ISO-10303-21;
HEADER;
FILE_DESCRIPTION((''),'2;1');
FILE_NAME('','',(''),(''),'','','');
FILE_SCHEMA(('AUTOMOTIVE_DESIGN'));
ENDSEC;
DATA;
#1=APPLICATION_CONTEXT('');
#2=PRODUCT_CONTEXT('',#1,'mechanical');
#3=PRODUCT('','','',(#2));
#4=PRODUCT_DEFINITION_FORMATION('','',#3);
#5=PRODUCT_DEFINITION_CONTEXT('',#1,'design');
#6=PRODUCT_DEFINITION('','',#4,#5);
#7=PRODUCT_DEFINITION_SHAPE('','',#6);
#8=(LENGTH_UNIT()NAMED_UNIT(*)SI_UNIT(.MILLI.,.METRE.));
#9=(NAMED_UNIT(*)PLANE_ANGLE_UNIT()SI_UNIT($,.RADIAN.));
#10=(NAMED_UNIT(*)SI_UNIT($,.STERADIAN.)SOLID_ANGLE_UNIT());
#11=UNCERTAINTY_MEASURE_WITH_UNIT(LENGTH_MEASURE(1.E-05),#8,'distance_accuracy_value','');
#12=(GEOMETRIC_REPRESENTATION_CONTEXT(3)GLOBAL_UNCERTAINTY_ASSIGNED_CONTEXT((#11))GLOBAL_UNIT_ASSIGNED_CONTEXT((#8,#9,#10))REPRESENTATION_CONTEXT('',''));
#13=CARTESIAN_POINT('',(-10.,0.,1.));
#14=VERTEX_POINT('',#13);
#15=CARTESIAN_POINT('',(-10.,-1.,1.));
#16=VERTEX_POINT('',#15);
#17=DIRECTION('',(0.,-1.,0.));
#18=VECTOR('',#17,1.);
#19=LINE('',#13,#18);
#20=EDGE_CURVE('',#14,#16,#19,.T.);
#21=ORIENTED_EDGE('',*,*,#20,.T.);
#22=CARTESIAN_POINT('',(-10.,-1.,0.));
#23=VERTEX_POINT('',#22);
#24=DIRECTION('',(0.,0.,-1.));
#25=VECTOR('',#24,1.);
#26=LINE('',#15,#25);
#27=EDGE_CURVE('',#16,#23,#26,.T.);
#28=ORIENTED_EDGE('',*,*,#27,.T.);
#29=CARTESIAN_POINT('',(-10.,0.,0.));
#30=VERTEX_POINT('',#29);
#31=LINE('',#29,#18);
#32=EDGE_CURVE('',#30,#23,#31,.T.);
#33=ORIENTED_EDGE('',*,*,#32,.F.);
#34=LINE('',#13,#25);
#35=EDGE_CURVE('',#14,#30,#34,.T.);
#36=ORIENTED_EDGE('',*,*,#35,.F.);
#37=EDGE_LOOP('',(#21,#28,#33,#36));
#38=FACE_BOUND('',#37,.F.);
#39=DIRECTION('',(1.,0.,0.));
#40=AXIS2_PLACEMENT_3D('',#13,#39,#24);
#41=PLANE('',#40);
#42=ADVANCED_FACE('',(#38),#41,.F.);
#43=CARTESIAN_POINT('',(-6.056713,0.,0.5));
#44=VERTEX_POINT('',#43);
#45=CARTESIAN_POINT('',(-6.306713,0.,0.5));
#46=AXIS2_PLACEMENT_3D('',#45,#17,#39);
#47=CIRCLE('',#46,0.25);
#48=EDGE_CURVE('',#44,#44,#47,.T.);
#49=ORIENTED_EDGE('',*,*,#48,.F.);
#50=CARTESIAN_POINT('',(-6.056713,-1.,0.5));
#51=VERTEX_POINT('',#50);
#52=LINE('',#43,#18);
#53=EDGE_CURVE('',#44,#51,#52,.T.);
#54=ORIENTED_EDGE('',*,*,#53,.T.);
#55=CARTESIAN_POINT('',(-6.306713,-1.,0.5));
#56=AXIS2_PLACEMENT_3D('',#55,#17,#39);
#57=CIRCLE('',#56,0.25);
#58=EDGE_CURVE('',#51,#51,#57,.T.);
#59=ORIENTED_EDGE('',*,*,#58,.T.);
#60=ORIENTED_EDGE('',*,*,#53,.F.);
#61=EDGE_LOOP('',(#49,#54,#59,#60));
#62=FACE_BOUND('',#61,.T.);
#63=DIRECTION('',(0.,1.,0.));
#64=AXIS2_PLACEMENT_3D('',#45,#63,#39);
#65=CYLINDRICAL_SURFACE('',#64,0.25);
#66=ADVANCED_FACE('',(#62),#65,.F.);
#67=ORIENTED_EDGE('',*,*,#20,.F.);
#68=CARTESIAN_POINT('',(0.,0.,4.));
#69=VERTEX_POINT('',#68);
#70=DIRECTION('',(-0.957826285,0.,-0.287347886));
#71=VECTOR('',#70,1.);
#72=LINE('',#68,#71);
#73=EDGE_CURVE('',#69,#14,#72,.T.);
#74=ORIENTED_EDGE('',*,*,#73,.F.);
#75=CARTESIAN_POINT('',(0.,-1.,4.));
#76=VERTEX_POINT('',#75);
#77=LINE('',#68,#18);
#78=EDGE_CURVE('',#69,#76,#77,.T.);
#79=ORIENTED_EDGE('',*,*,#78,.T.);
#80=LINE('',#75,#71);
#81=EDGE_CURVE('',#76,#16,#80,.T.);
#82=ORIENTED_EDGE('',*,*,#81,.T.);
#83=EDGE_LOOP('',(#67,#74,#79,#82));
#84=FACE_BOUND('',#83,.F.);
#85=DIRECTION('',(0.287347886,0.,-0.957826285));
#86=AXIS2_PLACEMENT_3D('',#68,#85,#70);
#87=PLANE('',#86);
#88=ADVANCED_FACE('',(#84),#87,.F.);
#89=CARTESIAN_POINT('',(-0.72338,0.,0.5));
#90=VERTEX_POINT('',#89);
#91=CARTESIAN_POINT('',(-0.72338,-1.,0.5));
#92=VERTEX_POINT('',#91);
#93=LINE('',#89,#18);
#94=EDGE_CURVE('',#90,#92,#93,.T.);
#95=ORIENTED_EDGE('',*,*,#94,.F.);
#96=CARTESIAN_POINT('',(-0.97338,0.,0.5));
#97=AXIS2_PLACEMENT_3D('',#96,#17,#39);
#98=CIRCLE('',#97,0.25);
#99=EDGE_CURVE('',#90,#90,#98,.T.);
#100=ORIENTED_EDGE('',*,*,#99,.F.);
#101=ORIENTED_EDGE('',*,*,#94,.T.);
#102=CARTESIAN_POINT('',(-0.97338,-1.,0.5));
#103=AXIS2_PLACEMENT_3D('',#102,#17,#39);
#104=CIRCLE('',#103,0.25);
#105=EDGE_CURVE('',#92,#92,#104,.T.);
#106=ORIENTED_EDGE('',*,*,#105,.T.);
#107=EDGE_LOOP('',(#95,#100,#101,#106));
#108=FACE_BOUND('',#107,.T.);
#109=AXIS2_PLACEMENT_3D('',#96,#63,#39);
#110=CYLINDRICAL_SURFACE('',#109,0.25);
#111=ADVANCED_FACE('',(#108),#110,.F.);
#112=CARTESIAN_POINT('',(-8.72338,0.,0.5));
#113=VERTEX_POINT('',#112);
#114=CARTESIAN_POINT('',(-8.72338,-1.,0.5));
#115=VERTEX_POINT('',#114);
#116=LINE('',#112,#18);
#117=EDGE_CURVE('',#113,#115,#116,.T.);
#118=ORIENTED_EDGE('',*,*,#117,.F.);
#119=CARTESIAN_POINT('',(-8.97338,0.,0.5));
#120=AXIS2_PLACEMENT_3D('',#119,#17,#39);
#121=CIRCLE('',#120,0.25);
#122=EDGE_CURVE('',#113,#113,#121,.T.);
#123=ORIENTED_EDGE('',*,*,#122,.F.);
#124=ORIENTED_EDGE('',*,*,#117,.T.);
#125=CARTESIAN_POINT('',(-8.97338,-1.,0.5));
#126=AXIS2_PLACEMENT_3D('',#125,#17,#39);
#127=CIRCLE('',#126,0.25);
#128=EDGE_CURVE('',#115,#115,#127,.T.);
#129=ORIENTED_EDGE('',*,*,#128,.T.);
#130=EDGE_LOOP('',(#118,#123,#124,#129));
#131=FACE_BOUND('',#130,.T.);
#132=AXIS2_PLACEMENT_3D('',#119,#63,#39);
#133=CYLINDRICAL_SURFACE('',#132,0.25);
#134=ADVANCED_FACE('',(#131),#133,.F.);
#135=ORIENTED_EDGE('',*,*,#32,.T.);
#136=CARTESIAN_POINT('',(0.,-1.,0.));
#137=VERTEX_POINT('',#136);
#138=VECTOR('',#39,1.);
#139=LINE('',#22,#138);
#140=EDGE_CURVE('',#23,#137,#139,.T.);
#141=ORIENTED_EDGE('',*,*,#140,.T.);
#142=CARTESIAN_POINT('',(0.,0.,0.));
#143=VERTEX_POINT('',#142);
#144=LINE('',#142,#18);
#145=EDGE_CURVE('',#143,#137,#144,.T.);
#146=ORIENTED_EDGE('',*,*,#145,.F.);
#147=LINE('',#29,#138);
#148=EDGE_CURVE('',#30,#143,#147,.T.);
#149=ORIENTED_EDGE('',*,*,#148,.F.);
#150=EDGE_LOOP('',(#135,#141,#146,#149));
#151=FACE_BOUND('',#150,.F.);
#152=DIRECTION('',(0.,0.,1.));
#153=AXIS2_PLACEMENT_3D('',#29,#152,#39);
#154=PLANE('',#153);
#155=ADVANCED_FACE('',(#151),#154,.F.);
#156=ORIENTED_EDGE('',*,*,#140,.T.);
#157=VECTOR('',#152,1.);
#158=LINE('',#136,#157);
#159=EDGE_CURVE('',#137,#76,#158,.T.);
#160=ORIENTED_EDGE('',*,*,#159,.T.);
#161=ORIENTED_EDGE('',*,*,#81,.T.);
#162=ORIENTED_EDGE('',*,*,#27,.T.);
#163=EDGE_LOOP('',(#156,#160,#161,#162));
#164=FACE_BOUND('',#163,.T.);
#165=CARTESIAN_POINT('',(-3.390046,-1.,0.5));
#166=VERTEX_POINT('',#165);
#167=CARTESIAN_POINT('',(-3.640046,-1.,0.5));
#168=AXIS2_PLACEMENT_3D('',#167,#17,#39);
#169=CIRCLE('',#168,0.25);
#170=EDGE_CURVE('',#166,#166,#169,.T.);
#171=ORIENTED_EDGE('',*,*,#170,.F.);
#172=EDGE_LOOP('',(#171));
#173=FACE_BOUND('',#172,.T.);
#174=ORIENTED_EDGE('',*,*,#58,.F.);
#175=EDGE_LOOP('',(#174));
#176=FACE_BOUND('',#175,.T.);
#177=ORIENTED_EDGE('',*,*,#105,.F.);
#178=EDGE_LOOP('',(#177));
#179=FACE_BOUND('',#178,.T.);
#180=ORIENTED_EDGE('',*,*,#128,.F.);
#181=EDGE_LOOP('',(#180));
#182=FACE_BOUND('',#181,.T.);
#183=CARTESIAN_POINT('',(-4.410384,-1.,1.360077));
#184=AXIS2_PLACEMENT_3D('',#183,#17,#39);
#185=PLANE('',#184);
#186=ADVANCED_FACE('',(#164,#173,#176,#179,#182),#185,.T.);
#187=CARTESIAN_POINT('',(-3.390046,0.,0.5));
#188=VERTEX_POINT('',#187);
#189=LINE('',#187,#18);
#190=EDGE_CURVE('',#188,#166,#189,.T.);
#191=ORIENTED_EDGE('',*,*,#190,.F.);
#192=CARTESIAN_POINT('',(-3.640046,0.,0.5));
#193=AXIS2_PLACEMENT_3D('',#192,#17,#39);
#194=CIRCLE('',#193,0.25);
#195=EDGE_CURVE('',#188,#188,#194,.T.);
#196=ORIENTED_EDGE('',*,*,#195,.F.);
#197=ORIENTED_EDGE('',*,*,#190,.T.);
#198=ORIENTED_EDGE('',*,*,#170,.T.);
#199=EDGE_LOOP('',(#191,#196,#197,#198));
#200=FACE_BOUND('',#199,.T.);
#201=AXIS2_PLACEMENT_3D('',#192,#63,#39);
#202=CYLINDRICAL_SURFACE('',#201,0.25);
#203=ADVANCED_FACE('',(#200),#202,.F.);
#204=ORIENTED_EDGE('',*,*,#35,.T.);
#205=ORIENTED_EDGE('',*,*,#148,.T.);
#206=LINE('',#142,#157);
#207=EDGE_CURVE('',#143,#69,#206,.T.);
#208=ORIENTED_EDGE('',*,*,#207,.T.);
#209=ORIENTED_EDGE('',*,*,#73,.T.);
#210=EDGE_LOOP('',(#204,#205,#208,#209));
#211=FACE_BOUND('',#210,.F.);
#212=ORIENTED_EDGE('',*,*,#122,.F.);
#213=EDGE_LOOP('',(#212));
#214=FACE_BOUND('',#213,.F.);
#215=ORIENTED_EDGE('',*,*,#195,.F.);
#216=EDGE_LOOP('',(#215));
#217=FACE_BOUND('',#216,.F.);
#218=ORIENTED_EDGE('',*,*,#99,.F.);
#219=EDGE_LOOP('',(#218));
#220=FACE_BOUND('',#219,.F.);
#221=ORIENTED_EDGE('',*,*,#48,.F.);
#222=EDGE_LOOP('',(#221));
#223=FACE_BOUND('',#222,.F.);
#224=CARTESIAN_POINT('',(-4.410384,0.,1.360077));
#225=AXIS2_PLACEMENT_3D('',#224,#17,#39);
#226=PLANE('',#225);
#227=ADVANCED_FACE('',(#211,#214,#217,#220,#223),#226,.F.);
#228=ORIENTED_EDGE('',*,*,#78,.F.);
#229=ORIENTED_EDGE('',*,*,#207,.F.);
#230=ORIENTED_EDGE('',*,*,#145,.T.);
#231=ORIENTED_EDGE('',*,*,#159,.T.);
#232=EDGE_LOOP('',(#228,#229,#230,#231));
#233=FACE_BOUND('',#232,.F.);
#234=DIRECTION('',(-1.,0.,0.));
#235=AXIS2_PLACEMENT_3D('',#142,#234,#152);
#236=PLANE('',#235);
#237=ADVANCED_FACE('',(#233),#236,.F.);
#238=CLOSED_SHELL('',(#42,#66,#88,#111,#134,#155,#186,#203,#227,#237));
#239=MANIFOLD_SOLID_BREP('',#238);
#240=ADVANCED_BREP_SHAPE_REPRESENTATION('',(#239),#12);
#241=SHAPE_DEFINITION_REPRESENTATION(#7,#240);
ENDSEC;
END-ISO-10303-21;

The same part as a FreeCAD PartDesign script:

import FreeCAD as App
import Part
import Sketcher
from FreeCAD import Vector

doc = App.newDocument("Part")
params = doc.addObject("Spreadsheet::Sheet", "Params")
for row, (alias, value) in enumerate([
    ("sketch1_diameter", "0.5 mm"),
    ("sketch1_width", "10 mm"),
    ("sketch1_height", "4 mm"),
    ("sketch1_height2", "1 mm"),
    ("pad1_length", "1 mm"),
], start=1):
    params.set(f"A{row}", alias)
    params.set(f"B{row}", "=" + value)
    params.setAlias(f"B{row}", alias)

body = doc.addObject("PartDesign::Body", "Body")

# Sketch on XZ plane
sketch1 = body.newObject("Sketcher::SketchObject", "Sketch")
sketch1.AttachmentSupport = (doc.getObject("XZ_Plane"), [""])
sketch1.MapMode = "FlatFace"
sketch1.addGeometry([
    Part.LineSegment(Vector(-10, 0, 0), Vector(0, 0, 0)),  # 0
    Part.LineSegment(Vector(0, 0, 0), Vector(0, 4, 0)),  # 1
    Part.LineSegment(Vector(0, 4, 0), Vector(-10, 1, 0)),  # 2
    Part.LineSegment(Vector(-10, 1, 0), Vector(-10, 0, 0)),  # 3
    Part.Circle(Vector(-8.97, 0.5, 0), Vector(0, 0, 1), 0.25),  # 4
    Part.Circle(Vector(-6.31, 0.5, 0), Vector(0, 0, 1), 0.25),  # 5
    Part.Circle(Vector(-3.64, 0.5, 0), Vector(0, 0, 1), 0.25),  # 6
    Part.Circle(Vector(-0.97, 0.5, 0), Vector(0, 0, 1), 0.25),  # 7
], False)
sketch1.addConstraint([
    Sketcher.Constraint("Coincident", 0, 2, 1, 1),
    Sketcher.Constraint("Coincident", 1, 2, 2, 1),
    Sketcher.Constraint("Coincident", 2, 2, 3, 1),
    Sketcher.Constraint("Coincident", 3, 2, 0, 1),
    Sketcher.Constraint("Horizontal", 0),
    Sketcher.Constraint("Vertical", 1),
    Sketcher.Constraint("Vertical", 3),
    Sketcher.Constraint("Coincident", 0, 2, -1, 1),
    Sketcher.Constraint("Equal", 4, 5),
    Sketcher.Constraint("Equal", 5, 6),
    Sketcher.Constraint("Equal", 6, 7),
    Sketcher.Constraint("Horizontal", 4, 3, 5, 3),
    Sketcher.Constraint("Horizontal", 5, 3, 6, 3),
    Sketcher.Constraint("Horizontal", 6, 3, 7, 3),
    Sketcher.Constraint("Diameter", 4, 0.5),
    Sketcher.Constraint("DistanceX", 0, 1, 0, 2, 10.0),
    Sketcher.Constraint("DistanceY", 1, 1, 1, 2, 4.0),
    Sketcher.Constraint("DistanceY", 3, 2, 3, 1, 1.0),
    Sketcher.Constraint("DistanceX", 4, 3, 7, 3, 8.0),
    Sketcher.Constraint("DistanceY", -1, 1, 4, 3, 0.5),
    Sketcher.Constraint("DistanceX", 4, 3, -1, 1, 8.97338),
    Sketcher.Constraint("DistanceX", 5, 3, -1, 1, 6.306713),
    Sketcher.Constraint("DistanceX", 6, 3, -1, 1, 3.640046),
])
sketch1.setExpression("Constraints[14]", "Params.sketch1_diameter")
sketch1.setExpression("Constraints[15]", "Params.sketch1_width")
sketch1.setExpression("Constraints[16]", "Params.sketch1_height")
sketch1.setExpression("Constraints[17]", "Params.sketch1_height2")
pad1 = body.newObject("PartDesign::Pad", "Pad")
pad1.Profile = sketch1
pad1.setExpression("Length", "Params.pad1_length")

doc.recompute()
